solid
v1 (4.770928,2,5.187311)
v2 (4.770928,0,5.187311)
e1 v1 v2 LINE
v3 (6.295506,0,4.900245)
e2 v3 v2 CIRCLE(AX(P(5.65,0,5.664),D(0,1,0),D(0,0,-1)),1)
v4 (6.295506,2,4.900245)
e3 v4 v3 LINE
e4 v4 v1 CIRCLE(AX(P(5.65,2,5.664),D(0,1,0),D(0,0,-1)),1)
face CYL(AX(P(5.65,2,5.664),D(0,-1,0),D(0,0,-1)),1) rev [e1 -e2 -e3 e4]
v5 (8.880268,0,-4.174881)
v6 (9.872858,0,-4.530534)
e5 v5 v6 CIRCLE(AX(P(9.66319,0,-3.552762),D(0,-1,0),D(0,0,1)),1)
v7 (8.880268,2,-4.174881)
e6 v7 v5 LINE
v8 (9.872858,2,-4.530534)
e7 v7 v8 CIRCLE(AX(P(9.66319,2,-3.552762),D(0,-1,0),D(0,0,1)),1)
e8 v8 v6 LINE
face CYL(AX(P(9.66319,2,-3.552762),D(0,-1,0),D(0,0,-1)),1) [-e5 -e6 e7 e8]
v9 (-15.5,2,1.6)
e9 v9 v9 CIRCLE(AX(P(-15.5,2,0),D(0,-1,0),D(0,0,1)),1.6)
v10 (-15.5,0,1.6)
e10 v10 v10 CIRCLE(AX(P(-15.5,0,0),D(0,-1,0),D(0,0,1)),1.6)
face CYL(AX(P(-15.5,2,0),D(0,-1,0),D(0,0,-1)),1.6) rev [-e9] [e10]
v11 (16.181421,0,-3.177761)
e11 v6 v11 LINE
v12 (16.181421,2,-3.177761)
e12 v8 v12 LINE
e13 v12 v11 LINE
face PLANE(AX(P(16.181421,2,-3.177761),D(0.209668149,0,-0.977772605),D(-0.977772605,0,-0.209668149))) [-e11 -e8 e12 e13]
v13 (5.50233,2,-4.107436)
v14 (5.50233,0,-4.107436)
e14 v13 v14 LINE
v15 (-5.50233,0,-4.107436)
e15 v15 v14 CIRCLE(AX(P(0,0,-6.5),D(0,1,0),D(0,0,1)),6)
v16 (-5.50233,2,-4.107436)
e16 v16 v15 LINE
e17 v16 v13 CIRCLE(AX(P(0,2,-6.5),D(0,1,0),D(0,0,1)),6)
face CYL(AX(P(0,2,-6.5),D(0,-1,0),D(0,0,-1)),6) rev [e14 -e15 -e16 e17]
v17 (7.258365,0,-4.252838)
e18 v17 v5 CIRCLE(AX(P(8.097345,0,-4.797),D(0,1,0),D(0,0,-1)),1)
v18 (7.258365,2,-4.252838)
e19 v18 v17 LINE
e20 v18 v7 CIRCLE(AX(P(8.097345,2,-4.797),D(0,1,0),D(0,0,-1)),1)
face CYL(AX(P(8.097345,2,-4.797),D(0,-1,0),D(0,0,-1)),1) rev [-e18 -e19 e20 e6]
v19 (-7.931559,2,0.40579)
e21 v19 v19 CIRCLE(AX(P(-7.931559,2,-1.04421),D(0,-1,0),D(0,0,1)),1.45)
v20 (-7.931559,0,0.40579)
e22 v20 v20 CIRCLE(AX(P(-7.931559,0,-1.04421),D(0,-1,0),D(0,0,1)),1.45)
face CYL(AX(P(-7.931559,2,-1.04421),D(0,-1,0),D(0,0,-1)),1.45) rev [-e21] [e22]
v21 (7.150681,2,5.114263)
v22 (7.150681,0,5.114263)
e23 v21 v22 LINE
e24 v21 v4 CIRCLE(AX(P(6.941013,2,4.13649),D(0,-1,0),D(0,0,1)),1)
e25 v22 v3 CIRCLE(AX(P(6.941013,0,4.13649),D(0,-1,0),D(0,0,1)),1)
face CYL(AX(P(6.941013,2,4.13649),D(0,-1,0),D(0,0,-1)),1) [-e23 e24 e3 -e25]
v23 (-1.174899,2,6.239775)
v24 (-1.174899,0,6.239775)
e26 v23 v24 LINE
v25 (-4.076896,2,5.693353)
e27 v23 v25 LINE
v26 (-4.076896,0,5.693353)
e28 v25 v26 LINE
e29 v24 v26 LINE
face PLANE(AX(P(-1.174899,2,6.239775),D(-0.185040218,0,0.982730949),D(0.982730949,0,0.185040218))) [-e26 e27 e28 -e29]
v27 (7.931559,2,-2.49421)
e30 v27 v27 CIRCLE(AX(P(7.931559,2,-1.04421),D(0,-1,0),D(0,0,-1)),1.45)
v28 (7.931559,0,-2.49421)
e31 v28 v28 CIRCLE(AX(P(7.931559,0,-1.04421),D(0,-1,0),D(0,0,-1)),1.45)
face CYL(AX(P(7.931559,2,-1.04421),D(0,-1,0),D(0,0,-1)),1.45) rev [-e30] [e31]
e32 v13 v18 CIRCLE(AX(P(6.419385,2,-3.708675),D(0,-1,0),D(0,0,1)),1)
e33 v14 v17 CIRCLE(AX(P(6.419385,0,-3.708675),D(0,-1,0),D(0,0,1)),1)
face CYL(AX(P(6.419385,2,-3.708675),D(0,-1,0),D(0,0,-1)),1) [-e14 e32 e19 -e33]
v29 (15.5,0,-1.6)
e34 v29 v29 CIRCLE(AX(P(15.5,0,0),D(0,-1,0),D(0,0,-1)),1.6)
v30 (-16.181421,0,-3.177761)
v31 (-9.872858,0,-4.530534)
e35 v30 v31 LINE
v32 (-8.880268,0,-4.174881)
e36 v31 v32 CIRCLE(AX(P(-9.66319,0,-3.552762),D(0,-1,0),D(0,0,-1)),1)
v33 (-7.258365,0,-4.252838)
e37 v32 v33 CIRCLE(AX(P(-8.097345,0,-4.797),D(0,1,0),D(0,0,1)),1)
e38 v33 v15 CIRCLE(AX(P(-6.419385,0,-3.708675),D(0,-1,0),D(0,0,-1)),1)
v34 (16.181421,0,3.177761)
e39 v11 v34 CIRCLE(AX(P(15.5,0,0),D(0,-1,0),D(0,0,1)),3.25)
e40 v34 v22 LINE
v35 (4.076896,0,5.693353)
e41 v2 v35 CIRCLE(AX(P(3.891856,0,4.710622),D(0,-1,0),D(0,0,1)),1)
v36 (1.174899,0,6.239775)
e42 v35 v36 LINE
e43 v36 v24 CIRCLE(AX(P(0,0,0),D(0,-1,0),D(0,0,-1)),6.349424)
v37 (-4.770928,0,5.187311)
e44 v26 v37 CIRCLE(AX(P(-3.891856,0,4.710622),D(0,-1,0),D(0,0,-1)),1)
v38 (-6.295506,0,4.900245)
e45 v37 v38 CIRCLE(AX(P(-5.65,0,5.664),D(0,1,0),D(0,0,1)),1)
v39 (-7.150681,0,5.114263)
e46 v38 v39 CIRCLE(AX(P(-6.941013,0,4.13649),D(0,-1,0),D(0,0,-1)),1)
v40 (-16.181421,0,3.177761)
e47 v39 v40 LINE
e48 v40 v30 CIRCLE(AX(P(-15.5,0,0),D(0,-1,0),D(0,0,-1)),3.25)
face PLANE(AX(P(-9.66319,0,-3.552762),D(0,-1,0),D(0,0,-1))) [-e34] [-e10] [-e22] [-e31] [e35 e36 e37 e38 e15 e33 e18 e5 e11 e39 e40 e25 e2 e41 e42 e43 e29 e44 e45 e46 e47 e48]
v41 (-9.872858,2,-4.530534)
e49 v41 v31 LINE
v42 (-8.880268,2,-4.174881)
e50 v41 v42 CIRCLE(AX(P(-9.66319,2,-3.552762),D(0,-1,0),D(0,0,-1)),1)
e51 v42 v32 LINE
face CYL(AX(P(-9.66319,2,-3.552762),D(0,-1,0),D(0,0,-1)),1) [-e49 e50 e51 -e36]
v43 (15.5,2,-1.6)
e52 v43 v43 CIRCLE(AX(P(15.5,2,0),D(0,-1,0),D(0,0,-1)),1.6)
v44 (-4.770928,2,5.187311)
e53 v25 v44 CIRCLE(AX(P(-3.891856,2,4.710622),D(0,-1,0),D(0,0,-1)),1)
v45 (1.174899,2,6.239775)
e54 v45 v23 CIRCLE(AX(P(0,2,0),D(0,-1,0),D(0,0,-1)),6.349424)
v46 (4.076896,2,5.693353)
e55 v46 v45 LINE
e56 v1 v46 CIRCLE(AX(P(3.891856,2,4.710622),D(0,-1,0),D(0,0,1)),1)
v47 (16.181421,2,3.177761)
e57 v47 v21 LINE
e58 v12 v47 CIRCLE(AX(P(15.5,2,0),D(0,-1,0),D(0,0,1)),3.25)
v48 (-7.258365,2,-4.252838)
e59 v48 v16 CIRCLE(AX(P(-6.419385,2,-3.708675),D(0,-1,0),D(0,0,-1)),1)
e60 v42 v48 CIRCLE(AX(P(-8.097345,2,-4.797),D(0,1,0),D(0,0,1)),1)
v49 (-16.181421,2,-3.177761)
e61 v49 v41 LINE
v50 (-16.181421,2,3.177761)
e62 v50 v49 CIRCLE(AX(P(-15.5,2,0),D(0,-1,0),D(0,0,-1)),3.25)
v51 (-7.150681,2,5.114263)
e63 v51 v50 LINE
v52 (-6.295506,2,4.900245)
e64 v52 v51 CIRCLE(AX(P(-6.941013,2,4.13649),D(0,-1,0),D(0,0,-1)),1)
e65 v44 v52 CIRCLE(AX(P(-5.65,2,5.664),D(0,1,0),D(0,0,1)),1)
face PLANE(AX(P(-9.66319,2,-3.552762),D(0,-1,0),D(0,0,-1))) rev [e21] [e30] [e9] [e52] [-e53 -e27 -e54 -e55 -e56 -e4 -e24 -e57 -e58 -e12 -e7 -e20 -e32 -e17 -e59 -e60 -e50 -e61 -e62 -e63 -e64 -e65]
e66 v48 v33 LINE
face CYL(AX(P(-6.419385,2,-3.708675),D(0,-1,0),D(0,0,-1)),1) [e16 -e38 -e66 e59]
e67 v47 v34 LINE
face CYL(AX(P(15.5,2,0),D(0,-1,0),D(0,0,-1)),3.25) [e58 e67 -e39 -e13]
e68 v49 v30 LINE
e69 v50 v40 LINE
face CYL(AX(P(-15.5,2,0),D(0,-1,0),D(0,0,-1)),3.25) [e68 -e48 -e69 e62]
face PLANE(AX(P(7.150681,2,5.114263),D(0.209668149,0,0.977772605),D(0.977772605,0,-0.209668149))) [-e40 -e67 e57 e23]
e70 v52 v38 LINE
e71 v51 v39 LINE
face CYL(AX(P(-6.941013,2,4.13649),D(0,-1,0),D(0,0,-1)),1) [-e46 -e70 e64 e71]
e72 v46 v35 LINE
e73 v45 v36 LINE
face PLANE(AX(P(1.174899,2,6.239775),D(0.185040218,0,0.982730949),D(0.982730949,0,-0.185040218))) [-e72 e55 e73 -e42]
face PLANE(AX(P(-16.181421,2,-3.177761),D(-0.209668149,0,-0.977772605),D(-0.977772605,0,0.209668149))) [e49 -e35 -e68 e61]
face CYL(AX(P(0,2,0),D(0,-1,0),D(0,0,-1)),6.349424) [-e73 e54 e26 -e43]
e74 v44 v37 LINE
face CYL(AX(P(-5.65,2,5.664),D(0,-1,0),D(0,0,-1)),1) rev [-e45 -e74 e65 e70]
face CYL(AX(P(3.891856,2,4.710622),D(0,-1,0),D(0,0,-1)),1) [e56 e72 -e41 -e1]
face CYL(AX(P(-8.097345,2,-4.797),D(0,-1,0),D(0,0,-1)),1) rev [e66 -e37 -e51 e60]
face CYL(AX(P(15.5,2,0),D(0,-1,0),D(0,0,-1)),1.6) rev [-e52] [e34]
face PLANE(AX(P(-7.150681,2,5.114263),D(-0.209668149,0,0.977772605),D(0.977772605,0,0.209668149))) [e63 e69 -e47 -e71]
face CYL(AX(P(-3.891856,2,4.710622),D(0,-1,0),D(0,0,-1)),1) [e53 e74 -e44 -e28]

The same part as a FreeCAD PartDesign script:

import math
import FreeCAD as App
import Part
import Sketcher

V = App.Vector

doc = App.newDocument("Part")
body = doc.addObject("PartDesign::Body", "Body")

sketch1 = doc.addObject("Sketcher::SketchObject", "Sketch")
body.addObject(sketch1)
sketch1.AttachmentSupport = (doc.XZ_Plane, [""])
sketch1.MapMode = "FlatFace"
sketch1.addGeometry(Part.LineSegment(V(9.9, -4.5, 0), V(16.2, -3.2, 0)), False)
sketch1.addGeometry(Part.ArcOfCircle(Part.Circle(V(15.5, 0, 0), V(0, 0, 1), 3.2), math.radians(-78), math.radians(78)), False)
sketch1.addGeometry(Part.LineSegment(V(16.2, 3.2, 0), V(7.2, 5.1, 0)), False)
sketch1.addGeometry(Part.ArcOfCircle(Part.Circle(V(6.9, 4.1, 0), V(0, 0, 1), 1), math.radians(78), math.radians(130)), False)
sketch1.addGeometry(Part.ArcOfCircle(Part.Circle(V(5.7, 5.7, 0), V(0, 0, 1), 1), math.radians(-152), math.radians(-50)), False)
sketch1.addGeometry(Part.ArcOfCircle(Part.Circle(V(3.9, 4.7, 0), V(0, 0, 1), 1), math.radians(28), math.radians(79)), False)
sketch1.addGeometry(Part.LineSegment(V(4.1, 5.7, 0), V(1.2, 6.2, 0)), False)
sketch1.addGeometry(Part.ArcOfCircle(Part.Circle(V(0, 0, 0), V(0, 0, 1), 6.3), math.radians(79), math.radians(101)), False)
sketch1.addGeometry(Part.LineSegment(V(-1.2, 6.2, 0), V(-4.1, 5.7, 0)), False)
sketch1.addGeometry(Part.ArcOfCircle(Part.Circle(V(-3.9, 4.7, 0), V(0, 0, 1), 1), math.radians(101), math.radians(152)), False)
sketch1.addGeometry(Part.ArcOfCircle(Part.Circle(V(-5.7, 5.7, 0), V(0, 0, 1), 1), math.radians(-130), math.radians(-28)), False)
sketch1.addGeometry(Part.ArcOfCircle(Part.Circle(V(-6.9, 4.1, 0), V(0, 0, 1), 1), math.radians(50), math.radians(102)), False)
sketch1.addGeometry(Part.LineSegment(V(-7.2, 5.1, 0), V(-16.2, 3.2, 0)), False)
sketch1.addGeometry(Part.ArcOfCircle(Part.Circle(V(-15.5, 0, 0), V(0, 0, 1), 3.2), math.radians(102), math.radians(258)), False)
sketch1.addGeometry(Part.LineSegment(V(-16.2, -3.2, 0), V(-9.9, -4.5, 0)), False)
sketch1.addGeometry(Part.ArcOfCircle(Part.Circle(V(-9.7, -3.6, 0), V(0, 0, 1), 1), math.radians(-102), math.radians(-38)), False)
sketch1.addGeometry(Part.ArcOfCircle(Part.Circle(V(-8.1, -4.8, 0), V(0, 0, 1), 1), math.radians(33), math.radians(142)), False)
sketch1.addGeometry(Part.ArcOfCircle(Part.Circle(V(-6.4, -3.7, 0), V(0, 0, 1), 1), math.radians(-147), math.radians(-24)), False)
sketch1.addGeometry(Part.ArcOfCircle(Part.Circle(V(0, -6.5, 0), V(0, 0, 1), 6), math.radians(24), math.radians(156)), False)
sketch1.addGeometry(Part.ArcOfCircle(Part.Circle(V(6.4, -3.7, 0), V(0, 0, 1), 1), math.radians(-156), math.radians(-33)), False)
sketch1.addGeometry(Part.ArcOfCircle(Part.Circle(V(8.1, -4.8, 0), V(0, 0, 1), 1), math.radians(38), math.radians(147)), False)
sketch1.addGeometry(Part.ArcOfCircle(Part.Circle(V(9.7, -3.6, 0), V(0, 0, 1), 1), math.radians(-142), math.radians(-78)), False)
sketch1.addGeometry(Part.Circle(V(7.9, -1, 0), V(0, 0, 1), 1.4), False)
sketch1.addGeometry(Part.Circle(V(-7.9, -1, 0), V(0, 0, 1), 1.4), False)
sketch1.addGeometry(Part.Circle(V(15.5, 0, 0), V(0, 0, 1), 1.6), False)
sketch1.addGeometry(Part.Circle(V(-15.5, 0, 0), V(0, 0, 1), 1.6), False)
sketch1.addConstraint(Sketcher.Constraint("Tangent", 0, 2, 1, 1))
sketch1.addConstraint(Sketcher.Constraint("Tangent", 1, 2, 2, 1))
sketch1.addConstraint(Sketcher.Constraint("Tangent", 2, 2, 3, 1))
sketch1.addConstraint(Sketcher.Constraint("Tangent", 3, 2, 4, 2))
sketch1.addConstraint(Sketcher.Constraint("Tangent", 4, 1, 5, 1))
sketch1.addConstraint(Sketcher.Constraint("Tangent", 5, 2, 6, 1))
sketch1.addConstraint(Sketcher.Constraint("Tangent", 6, 2, 7, 1))
sketch1.addConstraint(Sketcher.Constraint("Tangent", 7, 2, 8, 1))
sketch1.addConstraint(Sketcher.Constraint("Tangent", 8, 2, 9, 1))
sketch1.addConstraint(Sketcher.Constraint("Tangent", 9, 2, 10, 2))
sketch1.addConstraint(Sketcher.Constraint("Tangent", 10, 1, 11, 1))
sketch1.addConstraint(Sketcher.Constraint("Tangent", 11, 2, 12, 1))
sketch1.addConstraint(Sketcher.Constraint("Tangent", 12, 2, 13, 1))
sketch1.addConstraint(Sketcher.Constraint("Tangent", 13, 2, 14, 1))
sketch1.addConstraint(Sketcher.Constraint("Tangent", 14, 2, 15, 1))
sketch1.addConstraint(Sketcher.Constraint("Tangent", 15, 2, 16, 2))
sketch1.addConstraint(Sketcher.Constraint("Tangent", 16, 1, 17, 1))
sketch1.addConstraint(Sketcher.Constraint("Tangent", 17, 2, 18, 2))
sketch1.addConstraint(Sketcher.Constraint("Tangent", 18, 1, 19, 1))
sketch1.addConstraint(Sketcher.Constraint("Tangent", 19, 2, 20, 2))
sketch1.addConstraint(Sketcher.Constraint("Tangent", 20, 1, 21, 1))
sketch1.addConstraint(Sketcher.Constraint("Tangent", 21, 2, 0, 1))
sketch1.addConstraint(Sketcher.Constraint("Coincident", 7, 3, -1, 1))
sketch1.addConstraint(Sketcher.Constraint("Coincident", 24, 3, 1, 3))
sketch1.addConstraint(Sketcher.Constraint("Coincident", 25, 3, 13, 3))
sketch1.addConstraint(Sketcher.Constraint("Equal", 3, 4))
sketch1.addConstraint(Sketcher.Constraint("Equal", 4, 5))
sketch1.addConstraint(Sketcher.Constraint("Equal", 5, 9))
sketch1.addConstraint(Sketcher.Constraint("Equal", 9, 10))
sketch1.addConstraint(Sketcher.Constraint("Equal", 10, 11))
sketch1.addConstraint(Sketcher.Constraint("Equal", 1, 13))
sketch1.addConstraint(Sketcher.Constraint("Equal", 11, 15))
sketch1.addConstraint(Sketcher.Constraint("Equal", 15, 16))
sketch1.addConstraint(Sketcher.Constraint("Equal", 16, 17))
sketch1.addConstraint(Sketcher.Constraint("Equal", 17, 19))
sketch1.addConstraint(Sketcher.Constraint("Equal", 19, 20))
sketch1.addConstraint(Sketcher.Constraint("Equal", 20, 21))
sketch1.addConstraint(Sketcher.Constraint("Equal", 22, 23))
sketch1.addConstraint(Sketcher.Constraint("Equal", 24, 25))
sketch1.addConstraint(Sketcher.Constraint("Symmetric", 1, 3, 13, 3, -1, 1))
sketch1.addConstraint(Sketcher.Constraint("Symmetric", 5, 3, 9, 3, -2))
sketch1.addConstraint(Sketcher.Constraint("Symmetric", 3, 3, 11, 3, -2))
sketch1.addConstraint(Sketcher.Constraint("Symmetric", 17, 3, 19, 3, -2))
sketch1.addConstraint(Sketcher.Constraint("Symmetric", 15, 3, 21, 3, -2))
sketch1.addConstraint(Sketcher.Constraint("Symmetric", 22, 3, 23, 3, -2))
sketch1.addConstraint(Sketcher.Constraint("Symmetric", 0, 2, 1, 2, -1))
sketch1.addConstraint(Sketcher.Constraint("Radius", 3, 1.0))
sketch1.addConstraint(Sketcher.Constraint("Radius", 18, 6.0))
sketch1.addConstraint(Sketcher.Constraint("Diameter", 22, 2.9))
sketch1.addConstraint(Sketcher.Constraint("Diameter", 24, 3.2))
sketch1.addConstraint(Sketcher.Constraint("Radius", 1, 3.25))
sketch1.addConstraint(Sketcher.Constraint("DistanceX", -1, 1, 1, 3, 15.5))
sketch1.addConstraint(Sketcher.Constraint("DistanceY", 18, 3, -1, 1, 6.5))
sketch1.addConstraint(Sketcher.Constraint("DistanceX", 10, 3, 4, 3, 11.3))
sketch1.addConstraint(Sketcher.Constraint("DistanceY", -1, 1, 4, 3, 5.664))
sketch1.addConstraint(Sketcher.Constraint("DistanceY", 16, 3, -1, 1, 4.797))
sketch1.addConstraint(Sketcher.Constraint("Radius", 7, 6.349424))
sketch1.addConstraint(Sketcher.Constraint("DistanceY", 21, 3, 0, 2, 0.375001))
sketch1.addConstraint(Sketcher.Constraint("DistanceX", -1, 1, 6, 2, 1.174899))
sketch1.addConstraint(Sketcher.Constraint("DistanceY", 22, 3, 3, 3, 5.1807))
sketch1.addConstraint(Sketcher.Constraint("DistanceX", 14, 2, 23, 3, 1.941299))
sketch1.addConstraint(Sketcher.Constraint("DistanceY", 16, 1, 17, 2, 0.145402))
pad1 = doc.addObject("PartDesign::Pad", "Pad")
body.addObject(pad1)
pad1.Profile = sketch1
pad1.Length = 2
pad1.Reversed = True

doc.recompute()
